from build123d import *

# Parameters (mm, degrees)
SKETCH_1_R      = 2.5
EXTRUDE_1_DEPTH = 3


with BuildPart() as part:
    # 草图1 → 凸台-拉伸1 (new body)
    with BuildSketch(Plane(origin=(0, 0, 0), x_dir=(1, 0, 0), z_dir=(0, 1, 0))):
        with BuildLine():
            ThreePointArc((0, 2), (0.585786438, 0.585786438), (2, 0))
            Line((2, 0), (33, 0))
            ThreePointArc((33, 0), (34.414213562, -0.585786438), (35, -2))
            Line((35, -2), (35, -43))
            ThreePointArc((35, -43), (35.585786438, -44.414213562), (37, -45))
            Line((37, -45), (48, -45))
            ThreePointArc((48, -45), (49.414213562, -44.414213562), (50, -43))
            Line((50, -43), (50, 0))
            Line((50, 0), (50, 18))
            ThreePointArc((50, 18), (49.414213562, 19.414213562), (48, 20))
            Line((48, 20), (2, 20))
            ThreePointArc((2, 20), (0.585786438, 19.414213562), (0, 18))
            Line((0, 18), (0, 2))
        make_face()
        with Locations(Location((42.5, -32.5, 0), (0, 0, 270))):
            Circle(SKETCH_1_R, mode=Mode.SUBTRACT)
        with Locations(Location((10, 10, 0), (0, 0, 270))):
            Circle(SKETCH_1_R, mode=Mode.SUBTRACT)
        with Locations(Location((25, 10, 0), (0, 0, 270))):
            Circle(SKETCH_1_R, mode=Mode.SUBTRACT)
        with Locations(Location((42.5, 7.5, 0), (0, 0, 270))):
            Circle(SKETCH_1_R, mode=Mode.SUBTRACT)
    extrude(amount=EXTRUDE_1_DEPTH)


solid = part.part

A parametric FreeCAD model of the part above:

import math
import FreeCAD as App
import Part
import Sketcher

doc = App.newDocument("Part")
body = doc.addObject("PartDesign::Body", "Body")

# Sketch on XZ plane
sketch1 = body.newObject("Sketcher::SketchObject", "Sketch")
sketch1.AttachmentSupport = (doc.getObject("XZ_Plane"), [""])
sketch1.MapMode = "FlatFace"
sketch1.addGeometry(Part.ArcOfCircle(Part.Circle(App.Vector(2, -2, 0), App.Vector(0, 0, 1), 2), math.radians(90), math.radians(180)), False)
sketch1.addGeometry(Part.LineSegment(App.Vector(2, 0, 0), App.Vector(33, 0, 0)), False)
sketch1.addGeometry(Part.ArcOfCircle(Part.Circle(App.Vector(33, 2, 0), App.Vector(0, 0, 1), 2), math.radians(-90), math.radians(0)), False)
sketch1.addGeometry(Part.LineSegment(App.Vector(35, 2, 0), App.Vector(35, 43, 0)), False)
sketch1.addGeometry(Part.ArcOfCircle(Part.Circle(App.Vector(37, 43, 0), App.Vector(0, 0, 1), 2), math.radians(90), math.radians(180)), False)
sketch1.addGeometry(Part.LineSegment(App.Vector(37, 45, 0), App.Vector(48, 45, 0)), False)
sketch1.addGeometry(Part.ArcOfCircle(Part.Circle(App.Vector(48, 43, 0), App.Vector(0, 0, 1), 2), math.radians(0), math.radians(90)), False)
sketch1.addGeometry(Part.LineSegment(App.Vector(50, 43, 0), App.Vector(50, -18, 0)), False)
sketch1.addGeometry(Part.ArcOfCircle(Part.Circle(App.Vector(48, -18, 0), App.Vector(0, 0, 1), 2), math.radians(-90), math.radians(0)), False)
sketch1.addGeometry(Part.LineSegment(App.Vector(48, -20, 0), App.Vector(2, -20, 0)), False)
sketch1.addGeometry(Part.ArcOfCircle(Part.Circle(App.Vector(2, -18, 0), App.Vector(0, 0, 1), 2), math.radians(-180), math.radians(-90)), False)
sketch1.addGeometry(Part.LineSegment(App.Vector(0, -18, 0), App.Vector(0, -2, 0)), False)
sketch1.addGeometry(Part.Circle(App.Vector(42.5, 32.5, 0), App.Vector(0, 0, 1), 2.5), False)
sketch1.addGeometry(Part.Circle(App.Vector(10, -10, 0), App.Vector(0, 0, 1), 2.5), False)
sketch1.addGeometry(Part.Circle(App.Vector(25, -10, 0), App.Vector(0, 0, 1), 2.5), False)
sketch1.addGeometry(Part.Circle(App.Vector(42.5, -7.5, 0), App.Vector(0, 0, 1), 2.5), False)
sketch1.addConstraint(Sketcher.Constraint("Tangent", 0, 1, 1, 1))
sketch1.addConstraint(Sketcher.Constraint("Tangent", 1, 2, 2, 1))
sketch1.addConstraint(Sketcher.Constraint("Tangent", 2, 2, 3, 1))
sketch1.addConstraint(Sketcher.Constraint("Tangent", 3, 2, 4, 2))
sketch1.addConstraint(Sketcher.Constraint("Tangent", 4, 1, 5, 1))
sketch1.addConstraint(Sketcher.Constraint("Tangent", 5, 2, 6, 2))
sketch1.addConstraint(Sketcher.Constraint("Tangent", 6, 1, 7, 1))
sketch1.addConstraint(Sketcher.Constraint("Tangent", 7, 2, 8, 2))
sketch1.addConstraint(Sketcher.Constraint("Tangent", 8, 1, 9, 1))
sketch1.addConstraint(Sketcher.Constraint("Tangent", 9, 2, 10, 2))
sketch1.addConstraint(Sketcher.Constraint("Tangent", 10, 1, 11, 1))
sketch1.addConstraint(Sketcher.Constraint("Tangent", 11, 2, 0, 2))
sketch1.addConstraint(Sketcher.Constraint("Horizontal", 1))
sketch1.addConstraint(Sketcher.Constraint("Vertical", 3))
sketch1.addConstraint(Sketcher.Constraint("Horizontal", 5))
sketch1.addConstraint(Sketcher.Constraint("Vertical", 7))
sketch1.addConstraint(Sketcher.Constraint("Horizontal", 9))
sketch1.addConstraint(Sketcher.Constraint("Vertical", 11))
sketch1.addConstraint(Sketcher.Constraint("Equal", 0, 2))
sketch1.addConstraint(Sketcher.Constraint("Equal", 2, 4))
sketch1.addConstraint(Sketcher.Constraint("Equal", 4, 6))
sketch1.addConstraint(Sketcher.Constraint("Equal", 6, 8))
sketch1.addConstraint(Sketcher.Constraint("Equal", 8, 10))
sketch1.addConstraint(Sketcher.Constraint("Equal", 12, 13))
sketch1.addConstraint(Sketcher.Constraint("Equal", 13, 14))
sketch1.addConstraint(Sketcher.Constraint("Equal", 14, 15))
sketch1.addConstraint(Sketcher.Constraint("PointOnObject", 0, 1, -1))
sketch1.addConstraint(Sketcher.Constraint("PointOnObject", 10, 1, -2))
sketch1.addConstraint(Sketcher.Constraint("Horizontal", 13, 3, 14, 3))
sketch1.addConstraint(Sketcher.Constraint("Vertical", 12, 3, 15, 3))
sketch1.addConstraint(Sketcher.Constraint("Diameter", 12, 5.0))
sketch1.addConstraint(Sketcher.Constraint("Radius", 0, 2.0))
sketch1.addConstraint(Sketcher.Constraint("DistanceX", 1, 1, 1, 2, 31.0))
sketch1.addConstraint(Sketcher.Constraint("DistanceX", 5, 1, 5, 2, 11.0))
sketch1.addConstraint(Sketcher.Constraint("DistanceY", 3, 1, 3, 2, 41.0))
sketch1.addConstraint(Sketcher.Constraint("DistanceY", 7, 2, 7, 1, 61.0))
sketch1.addConstraint(Sketcher.Constraint("DistanceX", -1, 1, 13, 3, 10.0))
sketch1.addConstraint(Sketcher.Constraint("DistanceY", 13, 3, -1, 1, 10.0))
sketch1.addConstraint(Sketcher.Constraint("DistanceX", -1, 1, 14, 3, 25.0))
sketch1.addConstraint(Sketcher.Constraint("DistanceY", 15, 3, 12, 3, 40.0))
sketch1.addConstraint(Sketcher.Constraint("DistanceX", -1, 1, 12, 3, 42.5))
sketch1.addConstraint(Sketcher.Constraint("DistanceY", -1, 1, 12, 3, 32.5))
pad1 = body.newObject("PartDesign::Pad", "Pad")
pad1.Profile = sketch1
pad1.Length = 3
pad1.Reversed = True

doc.recompute()
